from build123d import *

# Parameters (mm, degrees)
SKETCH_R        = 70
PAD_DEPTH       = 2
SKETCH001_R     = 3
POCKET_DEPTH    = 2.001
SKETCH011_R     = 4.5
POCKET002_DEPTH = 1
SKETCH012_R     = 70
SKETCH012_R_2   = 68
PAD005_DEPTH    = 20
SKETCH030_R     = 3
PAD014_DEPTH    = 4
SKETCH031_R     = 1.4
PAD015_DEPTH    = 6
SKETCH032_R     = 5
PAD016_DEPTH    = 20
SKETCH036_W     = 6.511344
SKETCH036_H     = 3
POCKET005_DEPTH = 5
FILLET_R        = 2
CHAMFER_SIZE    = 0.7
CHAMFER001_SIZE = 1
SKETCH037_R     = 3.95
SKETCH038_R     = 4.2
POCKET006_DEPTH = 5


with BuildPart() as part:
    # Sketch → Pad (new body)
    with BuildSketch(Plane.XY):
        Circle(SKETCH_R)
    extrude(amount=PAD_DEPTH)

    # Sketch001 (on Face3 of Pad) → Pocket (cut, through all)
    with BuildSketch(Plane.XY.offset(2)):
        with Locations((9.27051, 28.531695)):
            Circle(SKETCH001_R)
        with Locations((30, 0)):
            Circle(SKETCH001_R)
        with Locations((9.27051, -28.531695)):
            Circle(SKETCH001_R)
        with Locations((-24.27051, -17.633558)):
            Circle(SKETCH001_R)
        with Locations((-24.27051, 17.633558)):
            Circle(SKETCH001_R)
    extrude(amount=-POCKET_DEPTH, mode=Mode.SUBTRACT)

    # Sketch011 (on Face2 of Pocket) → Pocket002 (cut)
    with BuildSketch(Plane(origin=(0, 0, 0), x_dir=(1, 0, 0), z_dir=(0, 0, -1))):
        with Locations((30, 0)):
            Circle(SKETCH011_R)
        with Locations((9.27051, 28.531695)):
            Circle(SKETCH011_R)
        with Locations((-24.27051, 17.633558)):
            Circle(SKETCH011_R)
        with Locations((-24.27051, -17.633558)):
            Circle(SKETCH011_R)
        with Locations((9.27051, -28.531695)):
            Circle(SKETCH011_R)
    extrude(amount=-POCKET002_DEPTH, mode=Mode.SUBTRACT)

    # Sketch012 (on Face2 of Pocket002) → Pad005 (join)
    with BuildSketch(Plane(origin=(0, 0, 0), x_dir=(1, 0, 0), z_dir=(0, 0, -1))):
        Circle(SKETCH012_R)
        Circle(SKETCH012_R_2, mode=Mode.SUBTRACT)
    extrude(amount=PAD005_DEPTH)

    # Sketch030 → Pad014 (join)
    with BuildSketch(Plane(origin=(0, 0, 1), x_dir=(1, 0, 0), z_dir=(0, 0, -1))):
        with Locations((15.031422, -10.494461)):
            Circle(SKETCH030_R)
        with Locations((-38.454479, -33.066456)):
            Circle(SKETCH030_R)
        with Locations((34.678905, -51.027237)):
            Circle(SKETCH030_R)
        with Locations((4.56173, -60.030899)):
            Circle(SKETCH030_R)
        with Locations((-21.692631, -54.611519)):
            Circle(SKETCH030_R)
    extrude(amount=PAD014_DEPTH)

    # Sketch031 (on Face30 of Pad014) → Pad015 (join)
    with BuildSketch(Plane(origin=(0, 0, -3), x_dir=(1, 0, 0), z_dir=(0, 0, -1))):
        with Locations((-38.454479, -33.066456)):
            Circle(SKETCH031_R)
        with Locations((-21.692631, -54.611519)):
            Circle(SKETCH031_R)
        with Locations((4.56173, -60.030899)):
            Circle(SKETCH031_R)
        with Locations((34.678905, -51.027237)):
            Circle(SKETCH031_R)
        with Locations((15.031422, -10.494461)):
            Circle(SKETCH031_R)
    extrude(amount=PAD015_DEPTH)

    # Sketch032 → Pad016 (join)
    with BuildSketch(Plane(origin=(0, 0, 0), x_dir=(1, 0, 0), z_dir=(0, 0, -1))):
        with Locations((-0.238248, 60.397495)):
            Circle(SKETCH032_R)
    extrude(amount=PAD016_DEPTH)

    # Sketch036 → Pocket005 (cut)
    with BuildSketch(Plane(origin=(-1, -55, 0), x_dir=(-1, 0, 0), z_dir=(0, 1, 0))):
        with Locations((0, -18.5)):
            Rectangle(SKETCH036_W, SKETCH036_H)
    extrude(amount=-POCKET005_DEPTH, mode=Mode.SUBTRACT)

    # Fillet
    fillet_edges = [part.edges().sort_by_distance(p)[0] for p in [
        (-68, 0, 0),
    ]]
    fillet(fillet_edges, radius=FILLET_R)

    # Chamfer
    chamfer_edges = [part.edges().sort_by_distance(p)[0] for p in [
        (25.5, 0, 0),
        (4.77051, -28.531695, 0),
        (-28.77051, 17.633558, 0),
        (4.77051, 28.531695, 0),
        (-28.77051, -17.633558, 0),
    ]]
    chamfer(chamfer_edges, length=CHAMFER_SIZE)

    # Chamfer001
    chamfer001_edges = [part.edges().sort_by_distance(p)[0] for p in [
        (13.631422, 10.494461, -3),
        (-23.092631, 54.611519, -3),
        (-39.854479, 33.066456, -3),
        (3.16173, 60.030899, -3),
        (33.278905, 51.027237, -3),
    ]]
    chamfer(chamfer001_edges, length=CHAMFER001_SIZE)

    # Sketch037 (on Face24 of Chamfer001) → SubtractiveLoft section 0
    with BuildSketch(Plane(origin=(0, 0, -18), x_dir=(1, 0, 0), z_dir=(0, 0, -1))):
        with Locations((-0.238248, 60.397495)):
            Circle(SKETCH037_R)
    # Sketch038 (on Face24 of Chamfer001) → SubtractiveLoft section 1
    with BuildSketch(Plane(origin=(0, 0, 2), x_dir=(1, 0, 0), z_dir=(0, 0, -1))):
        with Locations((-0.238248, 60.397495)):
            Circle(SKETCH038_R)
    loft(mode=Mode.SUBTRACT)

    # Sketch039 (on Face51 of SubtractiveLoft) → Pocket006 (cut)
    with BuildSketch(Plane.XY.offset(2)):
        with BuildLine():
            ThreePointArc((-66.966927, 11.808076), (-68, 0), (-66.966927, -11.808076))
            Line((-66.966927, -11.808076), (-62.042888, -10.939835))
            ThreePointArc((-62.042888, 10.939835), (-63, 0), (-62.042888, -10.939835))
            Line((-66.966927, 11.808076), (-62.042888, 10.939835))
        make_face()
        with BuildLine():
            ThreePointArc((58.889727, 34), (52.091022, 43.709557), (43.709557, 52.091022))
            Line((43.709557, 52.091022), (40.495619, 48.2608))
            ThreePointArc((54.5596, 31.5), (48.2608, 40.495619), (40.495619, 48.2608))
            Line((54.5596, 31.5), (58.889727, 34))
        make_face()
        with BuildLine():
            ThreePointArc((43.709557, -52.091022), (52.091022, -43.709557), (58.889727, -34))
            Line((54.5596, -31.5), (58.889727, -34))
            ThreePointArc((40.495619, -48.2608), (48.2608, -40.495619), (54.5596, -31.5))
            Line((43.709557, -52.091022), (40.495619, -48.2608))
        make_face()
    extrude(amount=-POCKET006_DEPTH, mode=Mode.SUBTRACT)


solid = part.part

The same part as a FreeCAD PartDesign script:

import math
import FreeCAD as App
import Part
import Sketcher

V = App.Vector
Q = App.Units.Quantity


def edges_at(feature, points):
    """Names of the edges that pass closest to the given points."""
    edges = feature.Shape.Edges
    near = lambda p: min(range(len(edges)), key=lambda i: edges[i].distToShape(Part.Vertex(*p))[0])
    return sorted({f"Edge{near(p) + 1}" for p in points})


def add_polygon(sketch, points):
    """Adds a closed chain of lines whose ends are joined by coincident constraints."""
    first, n = sketch.GeometryCount, len(points)
    for a, b in zip(points, points[1:] + points[:1]):
        sketch.addGeometry(Part.LineSegment(App.Vector(*a, 0), App.Vector(*b, 0)), False)
    for i in range(n):
        sketch.addConstraint(Sketcher.Constraint("Coincident", first + i, 2, first + (i + 1) % n, 1))

doc = App.newDocument("Part")
params = doc.addObject("Spreadsheet::Sheet", "Params")
for row, (alias, value) in enumerate([
    ("sketch1_diameter", "140 mm"),
    ("pad1_length", "2 mm"),
    ("sketch2_diameter", "6 mm"),
    ("sketch3_diameter", "9 mm"),
    ("pocket2_length", "1 mm"),
    ("sketch4_diameter", "140 mm"),
    ("sketch4_diameter2", "136 mm"),
    ("pad2_length", "20 mm"),
    ("sketch5_diameter", "6 mm"),
    ("pad3_length", "4 mm"),
    ("sketch6_diameter", "2.8 mm"),
    ("pad4_length", "6 mm"),
    ("sketch7_diameter", "10 mm"),
    ("pad5_length", "20 mm"),
    ("sketch8_height", "3 mm"),
    ("pocket3_length", "5 mm"),
    ("fillet_radius", "2 mm"),
    ("chamfer_size", "0.7 mm"),
    ("chamfer2_size", "1 mm"),
    ("sketch9_diameter", "7.9 mm"),
    ("sketch10_diameter", "8.4 mm"),
    ("sketch11_radius", "68 mm"),
    ("sketch11_length", "5 mm"),
    ("pocket4_length", "5 mm"),
], start=1):
    params.set(f"A{row}", alias)
    params.set(f"B{row}", "=" + value)
    params.setAlias(f"B{row}", alias)

body = doc.addObject("PartDesign::Body", "Body")

sketch1 = body.newObject("Sketcher::SketchObject", "Sketch")
sketch1.AttachmentSupport = (doc.getObject("XY_Plane"), [""])
sketch1.MapMode = "FlatFace"
sketch1.addGeometry(Part.Circle(V(0, 0, 0), V(0, 0, 1), 70), False)
sketch1.addConstraint(Sketcher.Constraint("Coincident", 0, 3, -1, 1))
sketch1.addConstraint(Sketcher.Constraint("Diameter", 0, Q("140 mm")))
sketch1.setExpression("Constraints[1]", "Params.sketch1_diameter")
pad1 = body.newObject("PartDesign::Pad", "Pad")
pad1.Profile = sketch1
pad1.setExpression("Length", "Params.pad1_length")

sketch2 = body.newObject("Sketcher::SketchObject", "Sketch001")
sketch2.AttachmentSupport = (doc.getObject("XY_Plane"), [""])
sketch2.MapMode = "FlatFace"
sketch2.AttachmentOffset = App.Placement(V(0, 0, 2), App.Rotation())
sketch2.addGeometry(Part.Circle(V(9.27051, 28.531695, 0), V(0, 0, 1), 3), False)
sketch2.addGeometry(Part.Circle(V(30, 0, 0), V(0, 0, 1), 3), False)
sketch2.addGeometry(Part.Circle(V(9.27051, -28.531695, 0), V(0, 0, 1), 3), False)
sketch2.addGeometry(Part.Circle(V(-24.27051, -17.633558, 0), V(0, 0, 1), 3), False)
sketch2.addGeometry(Part.Circle(V(-24.27051, 17.633558, 0), V(0, 0, 1), 3), False)
sketch2.addConstraint(Sketcher.Constraint("Equal", 0, 1))
sketch2.addConstraint(Sketcher.Constraint("Equal", 1, 2))
sketch2.addConstraint(Sketcher.Constraint("Equal", 2, 3))
sketch2.addConstraint(Sketcher.Constraint("Equal", 3, 4))
sketch2.addConstraint(Sketcher.Constraint("Symmetric", 0, 3, 2, 3, -1))
sketch2.addConstraint(Sketcher.Constraint("Symmetric", 3, 3, 4, 3, -1))
sketch2.addConstraint(Sketcher.Constraint("PointOnObject", 1, 3, -1))
sketch2.addConstraint(Sketcher.Constraint("Diameter", 0, Q("6 mm")))
sketch2.addConstraint(Sketcher.Constraint("DistanceX", -1, 1, 1, 3, Q("30 mm")))
sketch2.addConstraint(Sketcher.Constraint("DistanceX", -1, 1, 0, 3, Q("9.27051 mm")))
sketch2.addConstraint(Sketcher.Constraint("DistanceX", 3, 3, -1, 1, Q("24.27051 mm")))
sketch2.addConstraint(Sketcher.Constraint("DistanceY", 3, 3, -1, 1, Q("17.633558 mm")))
sketch2.addConstraint(Sketcher.Constraint("DistanceY", 2, 3, 0, 3, Q("57.06339 mm")))
sketch2.setExpression("Constraints[7]", "Params.sketch2_diameter")
pocket1 = body.newObject("PartDesign::Pocket", "Pocket")
pocket1.Profile = sketch2
pocket1.Type = "ThroughAll"

sketch3 = body.newObject("Sketcher::SketchObject", "Sketch002")
sketch3.AttachmentSupport = (doc.getObject("XY_Plane"), [""])
sketch3.MapMode = "FlatFace"
sketch3.addGeometry(Part.Circle(V(30, 0, 0), V(0, 0, 1), 4.5), False)
sketch3.addGeometry(Part.Circle(V(9.27051, -28.531695, 0), V(0, 0, 1), 4.5), False)
sketch3.addGeometry(Part.Circle(V(-24.27051, -17.633558, 0), V(0, 0, 1), 4.5), False)
sketch3.addGeometry(Part.Circle(V(-24.27051, 17.633558, 0), V(0, 0, 1), 4.5), False)
sketch3.addGeometry(Part.Circle(V(9.27051, 28.531695, 0), V(0, 0, 1), 4.5), False)
sketch3.addConstraint(Sketcher.Constraint("Equal", 0, 1))
sketch3.addConstraint(Sketcher.Constraint("Equal", 1, 2))
sketch3.addConstraint(Sketcher.Constraint("Equal", 2, 3))
sketch3.addConstraint(Sketcher.Constraint("Equal", 3, 4))
sketch3.addConstraint(Sketcher.Constraint("Symmetric", 2, 3, 3, 3, -1))
sketch3.addConstraint(Sketcher.Constraint("Symmetric", 1, 3, 4, 3, -1))
sketch3.addConstraint(Sketcher.Constraint("PointOnObject", 0, 3, -1))
sketch3.addConstraint(Sketcher.Constraint("Diameter", 0, Q("9 mm")))
sketch3.addConstraint(Sketcher.Constraint("DistanceX", -1, 1, 0, 3, Q("30 mm")))
sketch3.addConstraint(Sketcher.Constraint("DistanceX", -1, 1, 1, 3, Q("9.27051 mm")))
sketch3.addConstraint(Sketcher.Constraint("DistanceX", 2, 3, -1, 1, Q("24.27051 mm")))
sketch3.addConstraint(Sketcher.Constraint("DistanceY", 2, 3, -1, 1, Q("17.633558 mm")))
sketch3.addConstraint(Sketcher.Constraint("DistanceY", 1, 3, 4, 3, Q("57.06339 mm")))
sketch3.setExpression("Constraints[7]", "Params.sketch3_diameter")
pocket2 = body.newObject("PartDesign::Pocket", "Pocket001")
pocket2.Profile = sketch3
pocket2.setExpression("Length", "Params.pocket2_length")
pocket2.Reversed = True

sketch4 = body.newObject("Sketcher::SketchObject", "Sketch003")
sketch4.AttachmentSupport = (doc.getObject("XY_Plane"), [""])
sketch4.MapMode = "FlatFace"
sketch4.addGeometry(Part.Circle(V(0, 0, 0), V(0, 0, 1), 70), False)
sketch4.addGeometry(Part.Circle(V(0, 0, 0), V(0, 0, 1), 68), False)
sketch4.addConstraint(Sketcher.Constraint("Coincident", 0, 3, -1, 1))
sketch4.addConstraint(Sketcher.Constraint("Coincident", 1, 3, -1, 1))
sketch4.addConstraint(Sketcher.Constraint("Diameter", 0, Q("140 mm")))
sketch4.addConstraint(Sketcher.Constraint("Diameter", 1, Q("136 mm")))
sketch4.setExpression("Constraints[2]", "Params.sketch4_diameter")
sketch4.setExpression("Constraints[3]", "Params.sketch4_diameter2")
pad2 = body.newObject("PartDesign::Pad", "Pad001")
pad2.Profile = sketch4
pad2.setExpression("Length", "Params.pad2_length")
pad2.Reversed = True

sketch5 = body.newObject("Sketcher::SketchObject", "Sketch004")
sketch5.AttachmentSupport = (doc.getObject("XY_Plane"), [""])
sketch5.MapMode = "FlatFace"
sketch5.AttachmentOffset = App.Placement(V(0, 0, 1), App.Rotation())
sketch5.addGeometry(Part.Circle(V(15.031422, 10.494461, 0), V(0, 0, 1), 3), False)
sketch5.addGeometry(Part.Circle(V(-38.454479, 33.066456, 0), V(0, 0, 1), 3), False)
sketch5.addGeometry(Part.Circle(V(34.678905, 51.027237, 0), V(0, 0, 1), 3), False)
sketch5.addGeometry(Part.Circle(V(4.56173, 60.030899, 0), V(0, 0, 1), 3), False)
sketch5.addGeometry(Part.Circle(V(-21.692631, 54.611519, 0), V(0, 0, 1), 3), False)
sketch5.addConstraint(Sketcher.Constraint("Equal", 0, 1))
sketch5.addConstraint(Sketcher.Constraint("Equal", 1, 2))
sketch5.addConstraint(Sketcher.Constraint("Equal", 2, 3))
sketch5.addConstraint(Sketcher.Constraint("Equal", 3, 4))
sketch5.addConstraint(Sketcher.Constraint("Diameter", 0, Q("6 mm")))
sketch5.addConstraint(Sketcher.Constraint("DistanceY", -1, 1, 3, 3, Q("60.030899 mm")))
sketch5.addConstraint(Sketcher.Constraint("DistanceX", 1, 3, 0, 3, Q("53.485901 mm")))
sketch5.addConstraint(Sketcher.Constraint("DistanceX", -1, 1, 0, 3, Q("15.031422 mm")))
sketch5.addConstraint(Sketcher.Constraint("DistanceY", -1, 1, 0, 3, Q("10.494461 mm")))
sketch5.addConstraint(Sketcher.Constraint("DistanceX", -1, 1, 3, 3, Q("4.56173 mm")))
sketch5.addConstraint(Sketcher.Constraint("DistanceX", 4, 3, -1, 1, Q("21.692631 mm")))
sketch5.addConstraint(Sketcher.Constraint("DistanceY", -1, 1, 4, 3, Q("54.611519 mm")))
sketch5.addConstraint(Sketcher.Constraint("DistanceY", 1, 3, 2, 3, Q("17.960781 mm")))
sketch5.addConstraint(Sketcher.Constraint("DistanceY", 2, 3, 3, 3, Q("9.003662 mm")))
sketch5.addConstraint(Sketcher.Constraint("DistanceX", -1, 1, 2, 3, Q("34.678905 mm")))
sketch5.setExpression("Constraints[4]", "Params.sketch5_diameter")
pad3 = body.newObject("PartDesign::Pad", "Pad002")
pad3.Profile = sketch5
pad3.setExpression("Length", "Params.pad3_length")
pad3.Reversed = True

sketch6 = body.newObject("Sketcher::SketchObject", "Sketch005")
sketch6.AttachmentSupport = (doc.getObject("XY_Plane"), [""])
sketch6.MapMode = "FlatFace"
sketch6.AttachmentOffset = App.Placement(V(0, 0, -3), App.Rotation())
sketch6.addGeometry(Part.Circle(V(-38.454479, 33.066456, 0), V(0, 0, 1), 1.4), False)
sketch6.addGeometry(Part.Circle(V(-21.692631, 54.611519, 0), V(0, 0, 1), 1.4), False)
sketch6.addGeometry(Part.Circle(V(4.56173, 60.030899, 0), V(0, 0, 1), 1.4), False)
sketch6.addGeometry(Part.Circle(V(34.678905, 51.027237, 0), V(0, 0, 1), 1.4), False)
sketch6.addGeometry(Part.Circle(V(15.031422, 10.494461, 0), V(0, 0, 1), 1.4), False)
sketch6.addConstraint(Sketcher.Constraint("Equal", 0, 1))
sketch6.addConstraint(Sketcher.Constraint("Equal", 1, 2))
sketch6.addConstraint(Sketcher.Constraint("Equal", 2, 3))
sketch6.addConstraint(Sketcher.Constraint("Equal", 3, 4))
sketch6.addConstraint(Sketcher.Constraint("Diameter", 0, Q("2.8 mm")))
sketch6.addConstraint(Sketcher.Constraint("DistanceY", -1, 1, 2, 3, Q("60.030899 mm")))
sketch6.addConstraint(Sketcher.Constraint("DistanceX", 0, 3, 4, 3, Q("53.485901 mm")))
sketch6.addConstraint(Sketcher.Constraint("DistanceX", 0, 3, -1, 1, Q("38.454479 mm")))
sketch6.addConstraint(Sketcher.Constraint("DistanceX", 1, 3, -1, 1, Q("21.692631 mm")))
sketch6.addConstraint(Sketcher.Constraint("DistanceY", -1, 1, 1, 3, Q("54.611519 mm")))
sketch6.addConstraint(Sketcher.Constraint("DistanceX", -1, 1, 2, 3, Q("4.56173 mm")))
sketch6.addConstraint(Sketcher.Constraint("DistanceY", -1, 1, 4, 3, Q("10.494461 mm")))
sketch6.addConstraint(Sketcher.Constraint("DistanceY", 3, 3, 2, 3, Q("9.003662 mm")))
sketch6.addConstraint(Sketcher.Constraint("DistanceY", 0, 3, 3, 3, Q("17.960781 mm")))
sketch6.addConstraint(Sketcher.Constraint("DistanceX", -1, 1, 3, 3, Q("34.678905 mm")))
sketch6.setExpression("Constraints[4]", "Params.sketch6_diameter")
pad4 = body.newObject("PartDesign::Pad", "Pad003")
pad4.Profile = sketch6
pad4.setExpression("Length", "Params.pad4_length")
pad4.Reversed = True

sketch7 = body.newObject("Sketcher::SketchObject", "Sketch006")
sketch7.AttachmentSupport = (doc.getObject("XY_Plane"), [""])
sketch7.MapMode = "FlatFace"
sketch7.addGeometry(Part.Circle(V(-0.238248, -60.397495, 0), V(0, 0, 1), 5), False)
sketch7.addConstraint(Sketcher.Constraint("Diameter", 0, Q("10 mm")))
sketch7.addConstraint(Sketcher.Constraint("DistanceX", 0, 3, -1, 1, Q("0.238248 mm")))
sketch7.addConstraint(Sketcher.Constraint("DistanceY", 0, 3, -1, 1, Q("60.397495 mm")))
sketch7.setExpression("Constraints[0]", "Params.sketch7_diameter")
pad5 = body.newObject("PartDesign::Pad", "Pad004")
pad5.Profile = sketch7
pad5.setExpression("Length", "Params.pad5_length")
pad5.Reversed = True

sketch8 = body.newObject("Sketcher::SketchObject", "Sketch007")
sketch8.AttachmentSupport = (doc.getObject("XZ_Plane"), [""])
sketch8.MapMode = "FlatFace"
sketch8.AttachmentOffset = App.Placement(V(0, 0, 55), App.Rotation())
add_polygon(sketch8, [(2.255672, -17), (2.255672, -20), (-4.255672, -20), (-4.255672, -17)])
sketch8.addConstraint(Sketcher.Constraint("Vertical", 0))
sketch8.addConstraint(Sketcher.Constraint("Horizontal", 1))
sketch8.addConstraint(Sketcher.Constraint("Vertical", 2))
sketch8.addConstraint(Sketcher.Constraint("Horizontal", 3))
sketch8.addConstraint(Sketcher.Constraint("DistanceY", 0, 2, 0, 1, Q("3 mm")))
sketch8.addConstraint(Sketcher.Constraint("DistanceY", 0, 2, -1, 1, Q("20 mm")))
sketch8.addConstraint(Sketcher.Constraint("DistanceX", 1, 2, 1, 1, Q("6.511344 mm")))
sketch8.addConstraint(Sketcher.Constraint("DistanceX", 1, 2, -1, 1, Q("4.255672 mm")))
sketch8.setExpression("Constraints[8]", "Params.sketch8_height")
pocket3 = body.newObject("PartDesign::Pocket", "Pocket002")
pocket3.Profile = sketch8
pocket3.setExpression("Length", "Params.pocket3_length")
pocket3.Reversed = True
doc.recompute()

fillet = body.newObject("PartDesign::Fillet", "Fillet")
fillet.Base = (pocket3, edges_at(pocket3, [(-68, 0, 0)]))
fillet.setExpression("Radius", "Params.fillet_radius")
doc.recompute()

chamfer = body.newObject("PartDesign::Chamfer", "Chamfer")
chamfer.Base = (fillet, edges_at(fillet, [
    (25.5, 0, 0),
    (4.771, -28.532, 0),
    (-28.771, 17.634, 0),
    (4.771, 28.532, 0),
    (-28.771, -17.634, 0),
]))
chamfer.setExpression("Size", "Params.chamfer_size")
doc.recompute()

chamfer2 = body.newObject("PartDesign::Chamfer", "Chamfer001")
chamfer2.Base = (chamfer, edges_at(chamfer, [
    (13.631, 10.494, -3),
    (-23.093, 54.612, -3),
    (-39.854, 33.066, -3),
    (3.162, 60.031, -3),
    (33.279, 51.027, -3),
]))
chamfer2.setExpression("Size", "Params.chamfer2_size")

sketch9 = body.newObject("Sketcher::SketchObject", "Sketch008")
sketch9.AttachmentSupport = (doc.getObject("XY_Plane"), [""])
sketch9.MapMode = "FlatFace"
sketch9.AttachmentOffset = App.Placement(V(0, 0, -18), App.Rotation())
sketch9.addGeometry(Part.Circle(V(-0.238248, -60.397495, 0), V(0, 0, 1), 3.95), False)
sketch9.addConstraint(Sketcher.Constraint("Diameter", 0, Q("7.9 mm")))
sketch9.addConstraint(Sketcher.Constraint("DistanceX", 0, 3, -1, 1, Q("0.238248 mm")))
sketch9.addConstraint(Sketcher.Constraint("DistanceY", 0, 3, -1, 1, Q("60.397495 mm")))
sketch9.setExpression("Constraints[0]", "Params.sketch9_diameter")

sketch10 = body.newObject("Sketcher::SketchObject", "Sketch009")
sketch10.AttachmentSupport = (doc.getObject("XY_Plane"), [""])
sketch10.MapMode = "FlatFace"
sketch10.AttachmentOffset = App.Placement(V(0, 0, 2), App.Rotation())
sketch10.addGeometry(Part.Circle(V(-0.238248, -60.397495, 0), V(0, 0, 1), 4.2), False)
sketch10.addConstraint(Sketcher.Constraint("Diameter", 0, Q("8.4 mm")))
sketch10.addConstraint(Sketcher.Constraint("DistanceX", 0, 3, -1, 1, Q("0.238248 mm")))
sketch10.addConstraint(Sketcher.Constraint("DistanceY", 0, 3, -1, 1, Q("60.397495 mm")))
sketch10.setExpression("Constraints[0]", "Params.sketch10_diameter")

subtractiveloft = body.newObject("PartDesign::SubtractiveLoft", "SubtractiveLoft")
subtractiveloft.Profile = sketch9
subtractiveloft.Sections = [sketch10]

sketch11 = body.newObject("Sketcher::SketchObject", "Sketch010")
sketch11.AttachmentSupport = (doc.getObject("XY_Plane"), [""])
sketch11.MapMode = "FlatFace"
sketch11.AttachmentOffset = App.Placement(V(0, 0, 2), App.Rotation())
sketch11.addGeometry(Part.ArcOfCircle(Part.Circle(V(-0.000014, 0, 0), V(0, 0, 1), 67.999986), math.radians(169.999998), math.radians(190.000002)), False)
sketch11.addGeometry(Part.LineSegment(V(-66.966927, -11.808076, 0), V(-62.042888, -10.939835, 0)), False)
sketch11.addGeometry(Part.ArcOfCircle(Part.Circle(V(-0.000031, 0, 0), V(0, 0, 1), 62.999969), math.radians(169.999995), math.radians(190.000005)), False)
sketch11.addGeometry(Part.LineSegment(V(-62.042888, 10.939835, 0), V(-66.966927, 11.808076, 0)), False)
sketch11.addGeometry(Part.ArcOfCircle(Part.Circle(V(0, 0, 0), V(0, 0, 1), 68), math.radians(30), math.radians(50)), False)
sketch11.addGeometry(Part.LineSegment(V(43.709557, 52.091022, 0), V(40.495619, 48.2608, 0)), False)
sketch11.addGeometry(Part.ArcOfCircle(Part.Circle(V(0.000004, 0.000004, 0), V(0, 0, 1), 62.999994), math.radians(29.999999), math.radians(50.000001)), False)
sketch11.addGeometry(Part.LineSegment(V(54.5596, 31.5, 0), V(58.889727, 34, 0)), False)
sketch11.addGeometry(Part.ArcOfCircle(Part.Circle(V(0, 0, 0), V(0, 0, 1), 68), math.radians(-50), math.radians(-30)), False)
sketch11.addGeometry(Part.LineSegment(V(58.889727, -34, 0), V(54.5596, -31.5, 0)), False)
sketch11.addGeometry(Part.ArcOfCircle(Part.Circle(V(0.000004, -0.000004, 0), V(0, 0, 1), 62.999994), math.radians(-50.000001), math.radians(-29.999999)), False)
sketch11.addGeometry(Part.LineSegment(V(40.495619, -48.2608, 0), V(43.709557, -52.091022, 0)), False)
sketch11.addConstraint(Sketcher.Constraint("Coincident", 0, 2, 1, 1))
sketch11.addConstraint(Sketcher.Constraint("Coincident", 1, 2, 2, 2))
sketch11.addConstraint(Sketcher.Constraint("Coincident", 2, 1, 3, 1))
sketch11.addConstraint(Sketcher.Constraint("Coincident", 3, 2, 0, 1))
sketch11.addConstraint(Sketcher.Constraint("Coincident", 4, 2, 5, 1))
sketch11.addConstraint(Sketcher.Constraint("Coincident", 5, 2, 6, 2))
sketch11.addConstraint(Sketcher.Constraint("Coincident", 6, 1, 7, 1))
sketch11.addConstraint(Sketcher.Constraint("Coincident", 7, 2, 4, 1))
sketch11.addConstraint(Sketcher.Constraint("Coincident", 8, 2, 9, 1))
sketch11.addConstraint(Sketcher.Constraint("Coincident", 9, 2, 10, 2))
sketch11.addConstraint(Sketcher.Constraint("Coincident", 10, 1, 11, 1))
sketch11.addConstraint(Sketcher.Constraint("Coincident", 11, 2, 8, 1))
sketch11.addConstraint(Sketcher.Constraint("Coincident", 4, 3, -1, 1))
sketch11.addConstraint(Sketcher.Constraint("Coincident", 6, 3, -1, 1))
sketch11.addConstraint(Sketcher.Constraint("Coincident", 8, 3, -1, 1))
sketch11.addConstraint(Sketcher.Constraint("Coincident", 10, 3, -1, 1))
sketch11.addConstraint(Sketcher.Constraint("Equal", 4, 8))
sketch11.addConstraint(Sketcher.Constraint("Equal", 6, 10))
sketch11.addConstraint(Sketcher.Constraint("Symmetric", 1, 2, 2, 1, -1))
sketch11.addConstraint(Sketcher.Constraint("Symmetric", 0, 2, 3, 2, -1))
sketch11.addConstraint(Sketcher.Constraint("Vertical", 7, 2, 8, 2))
sketch11.addConstraint(Sketcher.Constraint("Vertical", 6, 1, 9, 2))
sketch11.addConstraint(Sketcher.Constraint("Vertical", 5, 2, 10, 1))
sketch11.addConstraint(Sketcher.Constraint("Vertical", 4, 2, 11, 2))
sketch11.addConstraint(Sketcher.Constraint("Equal", 3, 5))
sketch11.addConstraint(Sketcher.Constraint("Radius", 4, Q("68 mm")))
sketch11.addConstraint(Sketcher.Constraint("Angle", 1, Q("10.000001 deg")))
sketch11.addConstraint(Sketcher.Constraint("Angle", 5, Q("-130.000001 deg")))
sketch11.addConstraint(Sketcher.Constraint("Angle", 7, Q("30 deg")))
sketch11.addConstraint(Sketcher.Constraint("Distance", 1, Q("5 mm")))
sketch11.addConstraint(Sketcher.Constraint("DistanceY", -1, 1, 7, 2, Q("34 mm")))
sketch11.addConstraint(Sketcher.Constraint("Radius", 2, Q("62.999969 mm")))
sketch11.addConstraint(Sketcher.Constraint("Radius", 0, Q("67.999986 mm")))
sketch11.addConstraint(Sketcher.Constraint("DistanceY", -1, 1, 5, 2, Q("48.2608 mm")))
sketch11.addConstraint(Sketcher.Constraint("DistanceX", 2, 1, -1, 1, Q("62.042888 mm")))
sketch11.addConstraint(Sketcher.Constraint("DistanceY", 0, 2, 10, 3, Q("11.808072 mm")))
sketch11.setExpression("Constraints[25]", "Params.sketch11_radius")
sketch11.setExpression("Constraints[29]", "Params.sketch11_length")
pocket4 = body.newObject("PartDesign::Pocket", "Pocket003")
pocket4.Profile = sketch11
pocket4.setExpression("Length", "Params.pocket4_length")

doc.recompute()
